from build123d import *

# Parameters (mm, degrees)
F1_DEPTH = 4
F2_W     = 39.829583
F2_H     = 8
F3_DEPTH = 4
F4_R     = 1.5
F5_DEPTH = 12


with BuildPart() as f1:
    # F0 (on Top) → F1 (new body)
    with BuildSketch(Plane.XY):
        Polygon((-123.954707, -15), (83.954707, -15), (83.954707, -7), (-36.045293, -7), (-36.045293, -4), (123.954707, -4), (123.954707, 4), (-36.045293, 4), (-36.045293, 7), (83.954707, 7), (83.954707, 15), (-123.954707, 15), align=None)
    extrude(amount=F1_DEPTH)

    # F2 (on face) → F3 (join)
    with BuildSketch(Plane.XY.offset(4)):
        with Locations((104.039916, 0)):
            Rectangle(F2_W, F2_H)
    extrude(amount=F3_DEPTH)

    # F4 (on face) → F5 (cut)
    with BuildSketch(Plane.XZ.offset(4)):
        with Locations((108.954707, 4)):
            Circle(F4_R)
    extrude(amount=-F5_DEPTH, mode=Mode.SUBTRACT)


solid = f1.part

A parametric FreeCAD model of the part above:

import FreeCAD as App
import Part
import Sketcher

V = App.Vector
Q = App.Units.Quantity

doc = App.newDocument("Part")
body = doc.addObject("PartDesign::Body", "Body")

# Sketch on XY plane
sketch1 = doc.addObject("Sketcher::SketchObject", "Sketch")
body.addObject(sketch1)
sketch1.AttachmentSupport = (doc.XY_Plane, [""])
sketch1.MapMode = "FlatFace"
sketch1.addGeometry(Part.LineSegment(V(-124, -15, 0), V(84, -15, 0)), False)
sketch1.addGeometry(Part.LineSegment(V(84, -15, 0), V(84, -7, 0)), False)
sketch1.addGeometry(Part.LineSegment(V(84, -7, 0), V(-36, -7, 0)), False)
sketch1.addGeometry(Part.LineSegment(V(-36, -7, 0), V(-36, -4, 0)), False)
sketch1.addGeometry(Part.LineSegment(V(-36, -4, 0), V(124, -4, 0)), False)
sketch1.addGeometry(Part.LineSegment(V(124, -4, 0), V(124, 4, 0)), False)
sketch1.addGeometry(Part.LineSegment(V(124, 4, 0), V(-36, 4, 0)), False)
sketch1.addGeometry(Part.LineSegment(V(-36, 4, 0), V(-36, 7, 0)), False)
sketch1.addGeometry(Part.LineSegment(V(-36, 7, 0), V(84, 7, 0)), False)
sketch1.addGeometry(Part.LineSegment(V(84, 7, 0), V(84, 15, 0)), False)
sketch1.addGeometry(Part.LineSegment(V(84, 15, 0), V(-124, 15, 0)), False)
sketch1.addGeometry(Part.LineSegment(V(-124, 15, 0), V(-124, -15, 0)), False)
sketch1.addConstraint(Sketcher.Constraint("Coincident", 0, 2, 1, 1))
sketch1.addConstraint(Sketcher.Constraint("Coincident", 1, 2, 2, 1))
sketch1.addConstraint(Sketcher.Constraint("Coincident", 2, 2, 3, 1))
sketch1.addConstraint(Sketcher.Constraint("Coincident", 3, 2, 4, 1))
sketch1.addConstraint(Sketcher.Constraint("Coincident", 4, 2, 5, 1))
sketch1.addConstraint(Sketcher.Constraint("Coincident", 5, 2, 6, 1))
sketch1.addConstraint(Sketcher.Constraint("Coincident", 6, 2, 7, 1))
sketch1.addConstraint(Sketcher.Constraint("Coincident", 7, 2, 8, 1))
sketch1.addConstraint(Sketcher.Constraint("Coincident", 8, 2, 9, 1))
sketch1.addConstraint(Sketcher.Constraint("Coincident", 9, 2, 10, 1))
sketch1.addConstraint(Sketcher.Constraint("Coincident", 10, 2, 11, 1))
sketch1.addConstraint(Sketcher.Constraint("Coincident", 11, 2, 0, 1))
sketch1.addConstraint(Sketcher.Constraint("Horizontal", 0))
sketch1.addConstraint(Sketcher.Constraint("Vertical", 1))
sketch1.addConstraint(Sketcher.Constraint("Horizontal", 2))
sketch1.addConstraint(Sketcher.Constraint("Vertical", 3))
sketch1.addConstraint(Sketcher.Constraint("Horizontal", 4))
sketch1.addConstraint(Sketcher.Constraint("Vertical", 5))
sketch1.addConstraint(Sketcher.Constraint("Horizontal", 6))
sketch1.addConstraint(Sketcher.Constraint("Vertical", 7))
sketch1.addConstraint(Sketcher.Constraint("Horizontal", 8))
sketch1.addConstraint(Sketcher.Constraint("Vertical", 9))
sketch1.addConstraint(Sketcher.Constraint("Horizontal", 10))
sketch1.addConstraint(Sketcher.Constraint("Vertical", 11))
sketch1.addConstraint(Sketcher.Constraint("Symmetric", 3, 2, 6, 2, -1))
sketch1.addConstraint(Sketcher.Constraint("Symmetric", 1, 2, 8, 2, -1))
sketch1.addConstraint(Sketcher.Constraint("Equal", 1, 5))
sketch1.addConstraint(Sketcher.Constraint("Equal", 5, 9))
sketch1.addConstraint(Sketcher.Constraint("DistanceX", 2, 2, 2, 1, Q("120 mm")))
sketch1.addConstraint(Sketcher.Constraint("DistanceX", 4, 1, 4, 2, Q("160 mm")))
sketch1.addConstraint(Sketcher.Constraint("DistanceY", 1, 1, 1, 2, Q("8 mm")))
sketch1.addConstraint(Sketcher.Constraint("DistanceY", 3, 1, 3, 2, Q("3 mm")))
sketch1.addConstraint(Sketcher.Constraint("DistanceX", 0, 1, 0, 2, Q("207.909414 mm")))
sketch1.addConstraint(Sketcher.Constraint("DistanceX", -1, 1, 0, 2, Q("83.954707 mm")))
pad1 = doc.addObject("PartDesign::Pad", "Pad")
body.addObject(pad1)
pad1.Profile = sketch1
pad1.Length = 4

# Sketch on XY plane
sketch2 = doc.addObject("Sketcher::SketchObject", "Sketch001")
body.addObject(sketch2)
sketch2.AttachmentSupport = (doc.XY_Plane, [""])
sketch2.MapMode = "FlatFace"
sketch2.AttachmentOffset = App.Placement(V(0, 0, 4), App.Rotation())
sketch2.addGeometry(Part.LineSegment(V(84, 4, 0), V(84, -4, 0)), False)
sketch2.addGeometry(Part.LineSegment(V(84, -4, 0), V(124, -4, 0)), False)
sketch2.addGeometry(Part.LineSegment(V(124, -4, 0), V(124, 4, 0)), False)
sketch2.addGeometry(Part.LineSegment(V(124, 4, 0), V(84, 4, 0)), False)
sketch2.addConstraint(Sketcher.Constraint("Coincident", 0, 2, 1, 1))
sketch2.addConstraint(Sketcher.Constraint("Coincident", 1, 2, 2, 1))
sketch2.addConstraint(Sketcher.Constraint("Coincident", 2, 2, 3, 1))
sketch2.addConstraint(Sketcher.Constraint("Coincident", 3, 2, 0, 1))
sketch2.addConstraint(Sketcher.Constraint("Vertical", 0))
sketch2.addConstraint(Sketcher.Constraint("Horizontal", 1))
sketch2.addConstraint(Sketcher.Constraint("Vertical", 2))
sketch2.addConstraint(Sketcher.Constraint("Horizontal", 3))
sketch2.addConstraint(Sketcher.Constraint("DistanceY", 0, 2, 0, 1, Q("8 mm")))
sketch2.addConstraint(Sketcher.Constraint("DistanceY", 0, 2, -1, 1, Q("4 mm")))
sketch2.addConstraint(Sketcher.Constraint("DistanceX", 1, 1, 1, 2, Q("39.829583 mm")))
sketch2.addConstraint(Sketcher.Constraint("DistanceX", -1, 1, 0, 2, Q("84.125124 mm")))
pad2 = doc.addObject("PartDesign::Pad", "Pad001")
body.addObject(pad2)
pad2.Profile = sketch2
pad2.Length = 4

# Sketch on XZ plane
sketch3 = doc.addObject("Sketcher::SketchObject", "Sketch002")
body.addObject(sketch3)
sketch3.AttachmentSupport = (doc.XZ_Plane, [""])
sketch3.MapMode = "FlatFace"
sketch3.AttachmentOffset = App.Placement(V(0, 0, 4), App.Rotation())
sketch3.addGeometry(Part.Circle(V(109, 4, 0), V(0, 0, 1), 1.5), False)
sketch3.addConstraint(Sketcher.Constraint("Diameter", 0, Q("3 mm")))
sketch3.addConstraint(Sketcher.Constraint("DistanceY", -1, 1, 0, 3, Q("4 mm")))
sketch3.addConstraint(Sketcher.Constraint("DistanceX", -1, 1, 0, 3, Q("108.954707 mm")))
pocket1 = doc.addObject("PartDesign::Pocket", "Pocket")
body.addObject(pocket1)
pocket1.Profile = sketch3
pocket1.Length = 12

doc.recompute()
